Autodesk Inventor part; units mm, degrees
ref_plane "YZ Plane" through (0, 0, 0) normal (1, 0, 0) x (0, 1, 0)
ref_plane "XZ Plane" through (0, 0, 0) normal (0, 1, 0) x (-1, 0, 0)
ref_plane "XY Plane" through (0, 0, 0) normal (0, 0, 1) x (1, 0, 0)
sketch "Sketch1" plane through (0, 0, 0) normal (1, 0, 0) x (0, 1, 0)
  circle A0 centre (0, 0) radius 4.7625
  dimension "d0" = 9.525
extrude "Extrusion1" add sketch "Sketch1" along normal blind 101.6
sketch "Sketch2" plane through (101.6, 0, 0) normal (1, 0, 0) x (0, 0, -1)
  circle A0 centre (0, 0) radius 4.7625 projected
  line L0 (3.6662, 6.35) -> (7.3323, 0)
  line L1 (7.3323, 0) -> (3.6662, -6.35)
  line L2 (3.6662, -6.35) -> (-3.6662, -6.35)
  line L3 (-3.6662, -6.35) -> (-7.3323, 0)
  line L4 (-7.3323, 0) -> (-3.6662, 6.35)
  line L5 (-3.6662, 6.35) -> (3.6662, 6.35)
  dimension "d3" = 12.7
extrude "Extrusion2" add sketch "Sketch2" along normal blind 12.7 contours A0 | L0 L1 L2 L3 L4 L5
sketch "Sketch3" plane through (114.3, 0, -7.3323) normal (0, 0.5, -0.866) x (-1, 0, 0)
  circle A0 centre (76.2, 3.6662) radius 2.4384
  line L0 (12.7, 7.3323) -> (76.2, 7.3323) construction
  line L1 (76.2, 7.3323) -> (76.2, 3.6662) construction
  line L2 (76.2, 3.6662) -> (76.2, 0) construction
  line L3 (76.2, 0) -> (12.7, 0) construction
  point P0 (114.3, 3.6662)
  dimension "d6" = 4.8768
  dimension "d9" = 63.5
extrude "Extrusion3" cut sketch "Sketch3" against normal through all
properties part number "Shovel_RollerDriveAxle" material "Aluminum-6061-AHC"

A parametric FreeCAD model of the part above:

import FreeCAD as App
import Part
import Sketcher

V = App.Vector
Q = App.Units.Quantity


def add_polygon(sketch, points):
    """Adds a closed chain of lines whose ends are joined by coincident constraints."""
    first, n = sketch.GeometryCount, len(points)
    for a, b in zip(points, points[1:] + points[:1]):
        sketch.addGeometry(Part.LineSegment(App.Vector(*a, 0), App.Vector(*b, 0)), False)
    for i in range(n):
        sketch.addConstraint(Sketcher.Constraint("Coincident", first + i, 2, first + (i + 1) % n, 1))

doc = App.newDocument("Part")
params = doc.addObject("Spreadsheet::Sheet", "Params")
for row, (alias, value) in enumerate([
    ("sketch1_diameter", "0.375 in"),
    ("pad1_length", "4 in"),
    ("pad2_length", "0.5 in"),
    ("sketch3_diameter", "0.192 in"),
], start=1):
    params.set(f"A{row}", alias)
    params.set(f"B{row}", "=" + value)
    params.setAlias(f"B{row}", alias)

body = doc.addObject("PartDesign::Body", "Body")

sketch1 = body.newObject("Sketcher::SketchObject", "Sketch")
sketch1.AttachmentSupport = (doc.getObject("YZ_Plane"), [""])
sketch1.MapMode = "FlatFace"
sketch1.addGeometry(Part.Circle(V(0, 0, 0), V(0, 0, 1), 4.8), False)
sketch1.addConstraint([
    Sketcher.Constraint("Coincident", 0, 3, -1, 1),
    Sketcher.Constraint("Diameter", 0, Q("0.375 in")),
])
sketch1.setExpression("Constraints[1]", "Params.sketch1_diameter")
pad1 = body.newObject("PartDesign::Pad", "Pad")
pad1.Profile = sketch1
pad1.setExpression("Length", "Params.pad1_length")

sketch2 = body.newObject("Sketcher::SketchObject", "Sketch001")
sketch2.AttachmentSupport = (doc.getObject("YZ_Plane"), [""])
sketch2.MapMode = "FlatFace"
sketch2.AttachmentOffset = App.Placement(V(0, 0, 4 * 25.4), App.Rotation())
add_polygon(sketch2, [(0, -7), (6, -4), (6, 4), (0, 7), (-6, 4), (-6, -4)])
sketch2.addConstraint([
    Sketcher.Constraint("Vertical", 1),
    Sketcher.Constraint("Vertical", 4),
    Sketcher.Constraint("Symmetric", 0, 2, 3, 2, -1, 1),
    Sketcher.Constraint("Symmetric", 2, 2, 5, 2, -1, 1),
    Sketcher.Constraint("PointOnObject", 2, 2, -2),
    Sketcher.Constraint("Parallel", 2, 5),
    Sketcher.Constraint("Horizontal", 1, 2, 3, 2),
    Sketcher.Constraint("DistanceX", 3, 2, 1, 2, Q("0.5 in")),
    Sketcher.Constraint("Angle", 0, Q("29.9995 deg")),
    Sketcher.Constraint("DistanceY", 0, 2, 2, 2, Q("0.433 in")),
])
pad2 = body.newObject("PartDesign::Pad", "Pad001")
pad2.Profile = sketch2
pad2.setExpression("Length", "Params.pad2_length")

sketch3 = body.newObject("Sketcher::SketchObject", "Sketch002")
sketch3.Placement = App.Placement(V(114.3, 0, -7.3323), App.Rotation(V(-1, 0, 0), V(0, 0.866025404, 0.5), V(0, 0.5, -0.866025404), "ZXY"))
sketch3.addGeometry(Part.Circle(V(76.2, 3.7, 0), V(0, 0, 1), 2.4), False)
sketch3.addConstraint([
    Sketcher.Constraint("Diameter", 0, Q("0.192 in")),
    Sketcher.Constraint("DistanceX", -1, 1, 0, 3, Q("3 in")),
    Sketcher.Constraint("DistanceY", -1, 1, 0, 3, 3.6662),
])
sketch3.setExpression("Constraints[0]", "Params.sketch3_diameter")
pocket1 = body.newObject("PartDesign::Pocket", "Pocket")
pocket1.Profile = sketch3
pocket1.Type = "ThroughAll"

doc.recompute()
